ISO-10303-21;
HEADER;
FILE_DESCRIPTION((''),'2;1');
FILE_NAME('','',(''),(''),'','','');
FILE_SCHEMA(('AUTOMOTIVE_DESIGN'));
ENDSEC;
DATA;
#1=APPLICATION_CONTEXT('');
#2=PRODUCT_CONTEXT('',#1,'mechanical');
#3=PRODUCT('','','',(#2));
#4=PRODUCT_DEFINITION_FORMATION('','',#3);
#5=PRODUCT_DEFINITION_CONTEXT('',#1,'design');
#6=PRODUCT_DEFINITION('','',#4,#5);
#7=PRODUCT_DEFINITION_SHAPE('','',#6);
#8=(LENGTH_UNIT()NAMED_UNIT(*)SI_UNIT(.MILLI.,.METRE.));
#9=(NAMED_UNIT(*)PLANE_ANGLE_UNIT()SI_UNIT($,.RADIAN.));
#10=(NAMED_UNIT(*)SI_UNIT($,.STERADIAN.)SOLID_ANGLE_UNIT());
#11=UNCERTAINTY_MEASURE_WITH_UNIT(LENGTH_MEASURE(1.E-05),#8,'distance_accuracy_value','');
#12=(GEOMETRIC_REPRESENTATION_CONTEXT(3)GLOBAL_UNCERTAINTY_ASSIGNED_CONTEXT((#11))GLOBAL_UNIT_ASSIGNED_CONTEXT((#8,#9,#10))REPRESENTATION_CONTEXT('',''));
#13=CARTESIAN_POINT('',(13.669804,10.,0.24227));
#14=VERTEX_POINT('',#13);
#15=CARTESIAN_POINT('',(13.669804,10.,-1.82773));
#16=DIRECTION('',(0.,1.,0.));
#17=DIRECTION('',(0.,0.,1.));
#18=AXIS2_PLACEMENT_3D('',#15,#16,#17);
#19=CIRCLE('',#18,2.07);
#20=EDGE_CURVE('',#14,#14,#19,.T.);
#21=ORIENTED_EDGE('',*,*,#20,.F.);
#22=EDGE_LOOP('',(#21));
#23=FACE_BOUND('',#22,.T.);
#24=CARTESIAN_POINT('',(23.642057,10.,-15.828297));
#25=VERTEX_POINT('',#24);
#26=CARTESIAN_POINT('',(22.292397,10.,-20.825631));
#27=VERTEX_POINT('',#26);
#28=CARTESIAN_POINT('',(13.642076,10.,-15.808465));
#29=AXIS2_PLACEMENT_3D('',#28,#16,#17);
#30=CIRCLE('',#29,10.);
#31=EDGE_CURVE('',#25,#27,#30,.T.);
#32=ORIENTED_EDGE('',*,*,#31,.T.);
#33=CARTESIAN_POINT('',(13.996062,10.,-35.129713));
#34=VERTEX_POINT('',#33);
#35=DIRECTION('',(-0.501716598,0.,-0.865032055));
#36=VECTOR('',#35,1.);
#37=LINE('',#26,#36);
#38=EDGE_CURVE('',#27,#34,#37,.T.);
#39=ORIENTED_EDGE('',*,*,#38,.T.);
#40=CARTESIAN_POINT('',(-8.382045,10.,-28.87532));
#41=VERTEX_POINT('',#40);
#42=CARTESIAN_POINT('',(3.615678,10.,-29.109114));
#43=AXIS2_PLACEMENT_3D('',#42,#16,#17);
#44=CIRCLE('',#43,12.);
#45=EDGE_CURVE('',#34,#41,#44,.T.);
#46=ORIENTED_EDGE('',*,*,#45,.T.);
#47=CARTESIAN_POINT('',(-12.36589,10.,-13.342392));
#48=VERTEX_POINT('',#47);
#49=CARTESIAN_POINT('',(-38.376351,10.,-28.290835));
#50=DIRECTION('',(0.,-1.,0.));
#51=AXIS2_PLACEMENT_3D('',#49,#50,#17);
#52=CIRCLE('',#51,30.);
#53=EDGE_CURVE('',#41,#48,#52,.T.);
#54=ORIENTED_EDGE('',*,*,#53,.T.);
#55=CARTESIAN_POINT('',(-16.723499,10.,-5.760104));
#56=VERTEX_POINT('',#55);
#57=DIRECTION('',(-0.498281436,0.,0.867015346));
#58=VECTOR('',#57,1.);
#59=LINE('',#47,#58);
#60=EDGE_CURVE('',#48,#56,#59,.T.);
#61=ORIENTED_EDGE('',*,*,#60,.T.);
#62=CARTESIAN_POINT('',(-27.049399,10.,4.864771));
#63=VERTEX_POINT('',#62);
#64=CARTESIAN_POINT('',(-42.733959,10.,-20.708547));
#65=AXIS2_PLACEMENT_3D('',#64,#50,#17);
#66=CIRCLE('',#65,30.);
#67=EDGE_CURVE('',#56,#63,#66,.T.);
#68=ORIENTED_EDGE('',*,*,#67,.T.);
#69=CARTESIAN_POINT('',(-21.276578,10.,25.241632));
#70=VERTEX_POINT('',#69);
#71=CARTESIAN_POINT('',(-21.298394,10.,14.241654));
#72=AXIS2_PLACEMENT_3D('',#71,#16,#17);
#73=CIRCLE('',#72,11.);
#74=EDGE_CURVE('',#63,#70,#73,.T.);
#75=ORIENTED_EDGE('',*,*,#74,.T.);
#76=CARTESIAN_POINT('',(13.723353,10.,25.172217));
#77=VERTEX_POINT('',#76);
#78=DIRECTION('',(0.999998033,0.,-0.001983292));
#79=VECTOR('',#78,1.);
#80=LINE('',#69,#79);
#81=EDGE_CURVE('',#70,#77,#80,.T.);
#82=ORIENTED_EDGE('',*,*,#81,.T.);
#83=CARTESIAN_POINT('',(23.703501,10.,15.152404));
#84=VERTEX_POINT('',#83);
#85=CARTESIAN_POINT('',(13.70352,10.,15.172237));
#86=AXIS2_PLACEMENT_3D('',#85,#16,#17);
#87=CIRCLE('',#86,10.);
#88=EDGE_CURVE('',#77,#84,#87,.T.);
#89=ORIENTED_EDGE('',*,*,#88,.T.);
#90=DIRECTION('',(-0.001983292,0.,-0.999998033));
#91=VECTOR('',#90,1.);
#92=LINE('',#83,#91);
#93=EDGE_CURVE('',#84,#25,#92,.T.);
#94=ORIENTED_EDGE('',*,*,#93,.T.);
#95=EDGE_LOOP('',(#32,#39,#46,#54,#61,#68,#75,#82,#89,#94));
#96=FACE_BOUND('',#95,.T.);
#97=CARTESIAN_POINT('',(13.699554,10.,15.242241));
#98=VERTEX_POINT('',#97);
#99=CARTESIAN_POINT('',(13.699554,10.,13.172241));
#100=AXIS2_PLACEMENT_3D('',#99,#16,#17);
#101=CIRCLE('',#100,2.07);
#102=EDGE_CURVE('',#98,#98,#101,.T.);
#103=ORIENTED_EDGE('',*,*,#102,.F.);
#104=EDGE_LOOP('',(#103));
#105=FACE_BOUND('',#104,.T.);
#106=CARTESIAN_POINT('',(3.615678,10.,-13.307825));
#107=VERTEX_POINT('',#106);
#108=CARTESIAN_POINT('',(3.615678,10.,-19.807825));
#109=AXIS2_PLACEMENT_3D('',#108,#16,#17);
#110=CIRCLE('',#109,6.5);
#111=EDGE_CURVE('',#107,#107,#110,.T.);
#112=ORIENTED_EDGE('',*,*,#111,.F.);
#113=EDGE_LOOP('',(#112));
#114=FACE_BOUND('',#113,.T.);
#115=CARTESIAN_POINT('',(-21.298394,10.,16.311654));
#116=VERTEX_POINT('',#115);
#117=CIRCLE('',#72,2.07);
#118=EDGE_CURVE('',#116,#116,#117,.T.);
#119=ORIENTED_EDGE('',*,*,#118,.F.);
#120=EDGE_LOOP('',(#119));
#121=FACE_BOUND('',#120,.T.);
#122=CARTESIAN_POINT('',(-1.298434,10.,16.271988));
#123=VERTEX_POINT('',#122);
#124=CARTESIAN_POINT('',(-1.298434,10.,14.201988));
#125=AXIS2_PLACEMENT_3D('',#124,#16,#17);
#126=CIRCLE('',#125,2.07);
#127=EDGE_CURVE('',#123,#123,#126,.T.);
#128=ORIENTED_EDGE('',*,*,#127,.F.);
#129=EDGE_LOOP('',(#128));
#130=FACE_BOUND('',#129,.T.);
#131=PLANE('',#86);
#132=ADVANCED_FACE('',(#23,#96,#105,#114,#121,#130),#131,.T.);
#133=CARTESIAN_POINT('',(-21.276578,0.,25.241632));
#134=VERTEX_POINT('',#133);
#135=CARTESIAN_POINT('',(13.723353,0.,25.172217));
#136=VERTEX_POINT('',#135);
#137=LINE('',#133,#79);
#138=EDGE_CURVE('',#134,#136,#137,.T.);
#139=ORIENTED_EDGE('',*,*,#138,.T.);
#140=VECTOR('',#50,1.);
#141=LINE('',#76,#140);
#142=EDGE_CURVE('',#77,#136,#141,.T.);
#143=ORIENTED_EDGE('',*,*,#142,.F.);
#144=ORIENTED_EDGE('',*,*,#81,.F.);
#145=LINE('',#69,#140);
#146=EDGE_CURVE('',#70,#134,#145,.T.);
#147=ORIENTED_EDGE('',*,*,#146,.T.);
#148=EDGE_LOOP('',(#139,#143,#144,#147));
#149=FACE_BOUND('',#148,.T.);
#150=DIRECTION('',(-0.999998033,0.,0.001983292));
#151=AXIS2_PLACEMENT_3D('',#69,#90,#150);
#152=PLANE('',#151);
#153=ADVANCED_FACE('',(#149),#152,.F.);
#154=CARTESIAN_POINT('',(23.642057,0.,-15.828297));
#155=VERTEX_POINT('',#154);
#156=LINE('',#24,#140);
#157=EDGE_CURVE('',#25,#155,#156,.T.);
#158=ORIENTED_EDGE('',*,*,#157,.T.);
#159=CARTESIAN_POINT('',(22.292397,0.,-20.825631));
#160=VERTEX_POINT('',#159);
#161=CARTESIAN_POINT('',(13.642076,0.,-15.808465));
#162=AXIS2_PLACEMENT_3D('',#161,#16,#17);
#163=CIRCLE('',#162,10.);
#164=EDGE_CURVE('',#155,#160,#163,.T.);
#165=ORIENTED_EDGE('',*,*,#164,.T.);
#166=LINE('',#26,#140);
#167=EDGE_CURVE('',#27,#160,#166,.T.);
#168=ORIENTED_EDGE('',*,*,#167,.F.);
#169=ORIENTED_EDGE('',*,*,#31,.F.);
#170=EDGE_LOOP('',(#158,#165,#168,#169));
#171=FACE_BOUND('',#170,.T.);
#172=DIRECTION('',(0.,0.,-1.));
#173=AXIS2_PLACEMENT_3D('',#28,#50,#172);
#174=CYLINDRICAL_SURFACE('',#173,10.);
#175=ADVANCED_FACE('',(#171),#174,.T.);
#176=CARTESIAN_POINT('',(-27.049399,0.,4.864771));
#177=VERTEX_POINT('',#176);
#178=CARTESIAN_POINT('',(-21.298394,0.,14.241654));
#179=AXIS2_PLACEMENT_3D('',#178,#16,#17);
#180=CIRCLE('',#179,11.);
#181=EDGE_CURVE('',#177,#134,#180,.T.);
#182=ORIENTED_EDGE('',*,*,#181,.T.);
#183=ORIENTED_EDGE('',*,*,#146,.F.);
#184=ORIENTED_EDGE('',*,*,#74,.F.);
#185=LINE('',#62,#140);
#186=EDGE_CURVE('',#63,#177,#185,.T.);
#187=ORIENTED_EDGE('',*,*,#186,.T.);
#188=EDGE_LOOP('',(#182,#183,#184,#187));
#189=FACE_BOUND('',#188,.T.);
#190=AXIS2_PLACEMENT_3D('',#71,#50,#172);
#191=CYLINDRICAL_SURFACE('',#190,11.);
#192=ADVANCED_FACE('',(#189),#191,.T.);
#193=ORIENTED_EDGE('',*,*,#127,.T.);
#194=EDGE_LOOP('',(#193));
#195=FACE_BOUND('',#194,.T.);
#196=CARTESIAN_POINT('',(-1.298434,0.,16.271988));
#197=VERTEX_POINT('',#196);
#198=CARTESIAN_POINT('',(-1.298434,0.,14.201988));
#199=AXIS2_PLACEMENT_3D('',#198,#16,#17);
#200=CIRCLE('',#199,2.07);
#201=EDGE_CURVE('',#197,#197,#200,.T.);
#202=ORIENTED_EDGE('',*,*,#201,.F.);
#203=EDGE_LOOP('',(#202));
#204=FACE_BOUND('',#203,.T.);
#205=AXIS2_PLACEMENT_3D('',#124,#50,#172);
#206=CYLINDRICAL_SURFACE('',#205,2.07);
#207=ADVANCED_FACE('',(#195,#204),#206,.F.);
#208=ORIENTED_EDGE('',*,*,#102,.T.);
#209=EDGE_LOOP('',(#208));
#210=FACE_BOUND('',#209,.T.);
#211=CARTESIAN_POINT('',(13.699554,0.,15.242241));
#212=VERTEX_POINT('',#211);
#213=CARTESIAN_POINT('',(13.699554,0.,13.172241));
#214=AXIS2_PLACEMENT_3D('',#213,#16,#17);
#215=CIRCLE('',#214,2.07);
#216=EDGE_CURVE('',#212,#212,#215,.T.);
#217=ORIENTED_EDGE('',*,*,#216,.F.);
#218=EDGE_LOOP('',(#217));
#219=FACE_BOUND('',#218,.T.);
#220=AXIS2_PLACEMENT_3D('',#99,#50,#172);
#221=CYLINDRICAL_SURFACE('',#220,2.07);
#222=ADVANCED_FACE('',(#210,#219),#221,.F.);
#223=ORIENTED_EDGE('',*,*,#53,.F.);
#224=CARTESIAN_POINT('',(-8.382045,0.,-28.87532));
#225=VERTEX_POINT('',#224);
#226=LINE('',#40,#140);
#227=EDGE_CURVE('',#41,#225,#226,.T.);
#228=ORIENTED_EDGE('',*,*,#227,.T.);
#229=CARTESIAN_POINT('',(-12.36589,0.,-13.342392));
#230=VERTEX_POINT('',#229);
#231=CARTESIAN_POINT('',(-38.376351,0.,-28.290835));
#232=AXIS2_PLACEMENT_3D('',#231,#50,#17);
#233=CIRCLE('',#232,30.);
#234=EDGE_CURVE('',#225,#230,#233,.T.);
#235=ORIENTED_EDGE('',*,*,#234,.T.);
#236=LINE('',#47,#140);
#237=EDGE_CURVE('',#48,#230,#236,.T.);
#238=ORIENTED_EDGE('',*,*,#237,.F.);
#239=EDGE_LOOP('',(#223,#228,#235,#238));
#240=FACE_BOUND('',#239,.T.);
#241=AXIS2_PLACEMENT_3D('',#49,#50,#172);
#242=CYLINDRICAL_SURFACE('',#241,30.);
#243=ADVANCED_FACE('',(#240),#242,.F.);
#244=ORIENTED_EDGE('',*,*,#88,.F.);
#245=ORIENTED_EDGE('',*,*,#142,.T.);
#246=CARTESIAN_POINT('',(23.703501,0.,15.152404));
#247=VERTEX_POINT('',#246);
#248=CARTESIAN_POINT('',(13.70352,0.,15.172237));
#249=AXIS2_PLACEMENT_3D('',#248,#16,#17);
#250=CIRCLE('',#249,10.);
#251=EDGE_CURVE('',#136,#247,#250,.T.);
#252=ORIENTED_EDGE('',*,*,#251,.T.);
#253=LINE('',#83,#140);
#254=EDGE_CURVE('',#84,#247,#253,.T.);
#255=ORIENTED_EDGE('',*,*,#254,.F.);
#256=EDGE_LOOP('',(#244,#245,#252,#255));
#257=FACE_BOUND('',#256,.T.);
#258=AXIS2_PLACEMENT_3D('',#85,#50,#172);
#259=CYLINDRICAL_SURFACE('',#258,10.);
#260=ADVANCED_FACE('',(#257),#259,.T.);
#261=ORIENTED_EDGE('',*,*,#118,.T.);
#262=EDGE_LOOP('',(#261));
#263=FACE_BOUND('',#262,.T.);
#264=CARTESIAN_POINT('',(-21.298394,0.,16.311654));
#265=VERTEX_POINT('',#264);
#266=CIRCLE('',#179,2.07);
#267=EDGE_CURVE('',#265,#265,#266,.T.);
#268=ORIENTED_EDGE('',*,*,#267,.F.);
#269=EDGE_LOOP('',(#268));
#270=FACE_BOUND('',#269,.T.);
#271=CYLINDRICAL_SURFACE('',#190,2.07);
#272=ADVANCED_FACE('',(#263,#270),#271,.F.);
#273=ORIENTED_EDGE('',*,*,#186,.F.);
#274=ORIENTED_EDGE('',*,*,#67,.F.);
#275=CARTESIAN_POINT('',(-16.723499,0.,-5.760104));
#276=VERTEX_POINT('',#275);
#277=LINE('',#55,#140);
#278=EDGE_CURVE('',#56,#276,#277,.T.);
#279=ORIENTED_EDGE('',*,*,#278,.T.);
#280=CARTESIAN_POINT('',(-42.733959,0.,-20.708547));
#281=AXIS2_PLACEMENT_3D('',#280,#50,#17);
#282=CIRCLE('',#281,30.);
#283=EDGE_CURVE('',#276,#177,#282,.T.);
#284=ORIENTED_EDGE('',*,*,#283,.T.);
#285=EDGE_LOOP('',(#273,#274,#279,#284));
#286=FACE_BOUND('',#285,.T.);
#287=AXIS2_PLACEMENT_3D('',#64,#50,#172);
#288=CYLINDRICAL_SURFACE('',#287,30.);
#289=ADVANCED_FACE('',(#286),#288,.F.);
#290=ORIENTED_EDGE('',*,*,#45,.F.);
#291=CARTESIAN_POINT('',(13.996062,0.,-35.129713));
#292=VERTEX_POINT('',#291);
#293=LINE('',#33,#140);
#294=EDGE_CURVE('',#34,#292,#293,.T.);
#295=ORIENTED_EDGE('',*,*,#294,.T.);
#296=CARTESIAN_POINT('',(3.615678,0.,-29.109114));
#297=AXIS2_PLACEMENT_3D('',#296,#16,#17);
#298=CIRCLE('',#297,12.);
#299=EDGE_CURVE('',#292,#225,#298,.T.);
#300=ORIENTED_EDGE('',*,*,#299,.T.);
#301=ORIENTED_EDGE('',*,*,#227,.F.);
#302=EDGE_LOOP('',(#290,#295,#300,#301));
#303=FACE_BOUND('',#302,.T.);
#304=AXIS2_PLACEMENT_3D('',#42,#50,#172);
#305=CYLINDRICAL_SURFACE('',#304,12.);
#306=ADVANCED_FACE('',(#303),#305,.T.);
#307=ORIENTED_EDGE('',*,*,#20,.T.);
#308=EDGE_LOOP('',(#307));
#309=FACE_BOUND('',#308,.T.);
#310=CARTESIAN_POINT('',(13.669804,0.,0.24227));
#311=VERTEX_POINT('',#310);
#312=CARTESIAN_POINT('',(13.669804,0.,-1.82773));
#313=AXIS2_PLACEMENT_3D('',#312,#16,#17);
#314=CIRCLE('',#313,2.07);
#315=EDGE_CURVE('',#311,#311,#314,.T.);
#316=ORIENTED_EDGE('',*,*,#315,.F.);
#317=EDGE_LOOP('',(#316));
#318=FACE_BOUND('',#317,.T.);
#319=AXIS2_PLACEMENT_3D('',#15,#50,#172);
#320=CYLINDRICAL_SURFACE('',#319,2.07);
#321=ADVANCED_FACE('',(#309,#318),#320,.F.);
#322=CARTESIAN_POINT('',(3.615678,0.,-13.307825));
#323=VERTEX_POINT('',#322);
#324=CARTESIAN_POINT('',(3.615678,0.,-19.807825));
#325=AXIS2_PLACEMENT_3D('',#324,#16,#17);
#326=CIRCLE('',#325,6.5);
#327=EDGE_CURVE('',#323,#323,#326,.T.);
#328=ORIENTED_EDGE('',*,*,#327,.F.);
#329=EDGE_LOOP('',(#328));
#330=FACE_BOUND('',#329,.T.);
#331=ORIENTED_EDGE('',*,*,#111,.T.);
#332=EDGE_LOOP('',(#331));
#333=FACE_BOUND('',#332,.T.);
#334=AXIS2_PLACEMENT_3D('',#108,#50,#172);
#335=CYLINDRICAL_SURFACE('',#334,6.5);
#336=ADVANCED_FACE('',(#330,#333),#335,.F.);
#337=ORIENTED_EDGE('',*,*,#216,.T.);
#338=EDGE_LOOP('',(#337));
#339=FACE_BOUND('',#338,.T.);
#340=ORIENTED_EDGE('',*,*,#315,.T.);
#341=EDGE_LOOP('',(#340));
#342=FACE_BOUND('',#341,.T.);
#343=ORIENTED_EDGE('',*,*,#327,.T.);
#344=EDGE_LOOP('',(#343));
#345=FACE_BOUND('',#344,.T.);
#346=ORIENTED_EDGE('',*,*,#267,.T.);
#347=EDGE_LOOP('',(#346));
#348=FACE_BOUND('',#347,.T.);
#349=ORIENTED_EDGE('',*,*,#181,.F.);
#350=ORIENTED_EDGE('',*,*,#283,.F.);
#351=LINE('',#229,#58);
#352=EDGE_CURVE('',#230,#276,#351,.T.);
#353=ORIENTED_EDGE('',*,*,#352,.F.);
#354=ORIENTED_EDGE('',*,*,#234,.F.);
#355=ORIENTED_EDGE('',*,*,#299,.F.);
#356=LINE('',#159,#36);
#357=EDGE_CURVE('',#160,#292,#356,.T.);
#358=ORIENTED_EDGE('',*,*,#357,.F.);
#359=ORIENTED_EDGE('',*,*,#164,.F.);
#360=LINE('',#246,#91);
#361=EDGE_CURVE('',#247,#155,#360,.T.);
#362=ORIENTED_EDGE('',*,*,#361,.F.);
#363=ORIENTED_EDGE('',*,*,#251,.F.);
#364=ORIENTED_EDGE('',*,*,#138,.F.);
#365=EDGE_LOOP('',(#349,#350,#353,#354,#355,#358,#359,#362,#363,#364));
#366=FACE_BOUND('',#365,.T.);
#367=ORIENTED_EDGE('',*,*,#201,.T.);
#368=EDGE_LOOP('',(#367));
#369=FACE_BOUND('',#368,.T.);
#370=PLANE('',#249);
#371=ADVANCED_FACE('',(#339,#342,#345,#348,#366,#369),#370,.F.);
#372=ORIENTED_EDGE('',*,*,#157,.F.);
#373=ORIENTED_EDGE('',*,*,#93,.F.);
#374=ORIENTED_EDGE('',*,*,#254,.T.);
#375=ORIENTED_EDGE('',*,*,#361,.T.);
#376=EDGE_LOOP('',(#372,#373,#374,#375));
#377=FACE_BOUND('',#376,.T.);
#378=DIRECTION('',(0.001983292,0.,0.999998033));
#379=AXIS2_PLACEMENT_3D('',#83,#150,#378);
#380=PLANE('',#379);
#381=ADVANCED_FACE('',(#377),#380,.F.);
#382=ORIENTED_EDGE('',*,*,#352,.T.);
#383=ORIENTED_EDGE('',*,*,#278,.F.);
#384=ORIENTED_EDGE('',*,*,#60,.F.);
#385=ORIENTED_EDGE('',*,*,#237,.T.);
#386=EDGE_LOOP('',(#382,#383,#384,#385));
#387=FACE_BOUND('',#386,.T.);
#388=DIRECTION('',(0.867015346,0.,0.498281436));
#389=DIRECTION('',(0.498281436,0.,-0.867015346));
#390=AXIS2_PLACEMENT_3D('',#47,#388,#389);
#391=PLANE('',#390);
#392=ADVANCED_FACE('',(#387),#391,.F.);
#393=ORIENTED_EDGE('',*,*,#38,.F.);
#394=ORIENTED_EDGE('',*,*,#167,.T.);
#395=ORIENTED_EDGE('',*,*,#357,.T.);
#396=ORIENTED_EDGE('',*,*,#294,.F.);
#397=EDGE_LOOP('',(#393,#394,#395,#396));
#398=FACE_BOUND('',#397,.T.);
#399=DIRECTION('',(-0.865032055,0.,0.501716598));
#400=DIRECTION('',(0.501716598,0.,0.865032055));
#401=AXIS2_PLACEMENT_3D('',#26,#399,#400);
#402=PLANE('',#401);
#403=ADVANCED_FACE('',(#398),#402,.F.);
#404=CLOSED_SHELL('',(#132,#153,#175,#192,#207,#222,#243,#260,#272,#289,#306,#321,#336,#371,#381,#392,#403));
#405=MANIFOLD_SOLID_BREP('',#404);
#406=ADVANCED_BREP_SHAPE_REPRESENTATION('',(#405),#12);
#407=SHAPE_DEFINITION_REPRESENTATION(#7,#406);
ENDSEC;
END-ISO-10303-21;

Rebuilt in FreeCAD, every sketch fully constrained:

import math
import FreeCAD as App
import Part
import Sketcher

doc = App.newDocument("Part")
body = doc.addObject("PartDesign::Body", "Body")

# Sketch on XZ plane
sketch1 = doc.addObject("Sketcher::SketchObject", "Sketch")
body.addObject(sketch1)
sketch1.AttachmentSupport = (doc.XZ_Plane, [""])
sketch1.MapMode = "FlatFace"
sketch1.addGeometry(Part.LineSegment(App.Vector(23.7, 15.2, 0), App.Vector(23.6, -15.8, 0)), False)
sketch1.addGeometry(Part.ArcOfCircle(Part.Circle(App.Vector(13.6, -15.8, 0), App.Vector(0, 0, 1), 10), math.radians(-30), math.radians(0)), False)
sketch1.addGeometry(Part.LineSegment(App.Vector(22.3, -20.8, 0), App.Vector(14, -35.1, 0)), False)
sketch1.addGeometry(Part.ArcOfCircle(Part.Circle(App.Vector(3.6, -29.1, 0), App.Vector(0, 0, 1), 12), math.radians(179), math.radians(330)), False)
sketch1.addGeometry(Part.ArcOfCircle(Part.Circle(App.Vector(-38.4, -28.3, 0), App.Vector(0, 0, 1), 30), math.radians(-1), math.radians(30)), False)
sketch1.addGeometry(Part.LineSegment(App.Vector(-12.4, -13.3, 0), App.Vector(-16.7, -5.8, 0)), False)
sketch1.addGeometry(Part.ArcOfCircle(Part.Circle(App.Vector(-42.7, -20.7, 0), App.Vector(0, 0, 1), 30), math.radians(30), math.radians(58)), False)
sketch1.addGeometry(Part.ArcOfCircle(Part.Circle(App.Vector(-21.3, 14.2, 0), App.Vector(0, 0, 1), 11), math.radians(90), math.radians(238)), False)
sketch1.addGeometry(Part.LineSegment(App.Vector(-21.3, 25.2, 0), App.Vector(13.7, 25.2, 0)), False)
sketch1.addGeometry(Part.ArcOfCircle(Part.Circle(App.Vector(13.7, 15.2, 0), App.Vector(0, 0, 1), 10), math.radians(0), math.radians(90)), False)
sketch1.addGeometry(Part.Circle(App.Vector(-21.3, 14.2, 0), App.Vector(0, 0, 1), 2.1), False)
sketch1.addGeometry(Part.Circle(App.Vector(-1.3, 14.2, 0), App.Vector(0, 0, 1), 2.1), False)
sketch1.addGeometry(Part.Circle(App.Vector(13.7, 13.2, 0), App.Vector(0, 0, 1), 2.1), False)
sketch1.addGeometry(Part.Circle(App.Vector(13.7, -1.8, 0), App.Vector(0, 0, 1), 2.1), False)
sketch1.addGeometry(Part.Circle(App.Vector(3.6, -19.8, 0), App.Vector(0, 0, 1), 6.5), False)
sketch1.addConstraint(Sketcher.Constraint("Tangent", 0, 2, 1, 2))
sketch1.addConstraint(Sketcher.Constraint("Tangent", 1, 1, 2, 1))
sketch1.addConstraint(Sketcher.Constraint("Tangent", 2, 2, 3, 2))
sketch1.addConstraint(Sketcher.Constraint("Tangent", 3, 1, 4, 1))
sketch1.addConstraint(Sketcher.Constraint("Tangent", 4, 2, 5, 1))
sketch1.addConstraint(Sketcher.Constraint("Tangent", 5, 2, 6, 1))
sketch1.addConstraint(Sketcher.Constraint("Tangent", 6, 2, 7, 2))
sketch1.addConstraint(Sketcher.Constraint("Tangent", 7, 1, 8, 1))
sketch1.addConstraint(Sketcher.Constraint("Tangent", 8, 2, 9, 2))
sketch1.addConstraint(Sketcher.Constraint("Tangent", 9, 1, 0, 1))
sketch1.addConstraint(Sketcher.Constraint("Coincident", 10, 3, 7, 3))
sketch1.addConstraint(Sketcher.Constraint("Equal", 4, 6))
sketch1.addConstraint(Sketcher.Constraint("Equal", 1, 9))
sketch1.addConstraint(Sketcher.Constraint("Equal", 10, 11))
sketch1.addConstraint(Sketcher.Constraint("Equal", 11, 12))
sketch1.addConstraint(Sketcher.Constraint("Equal", 12, 13))
sketch1.addConstraint(Sketcher.Constraint("Perpendicular", 0, 8))
sketch1.addConstraint(Sketcher.Constraint("Vertical", 3, 3, 14, 3))
sketch1.addConstraint(Sketcher.Constraint("Diameter", 14, 13.0))
sketch1.addConstraint(Sketcher.Constraint("Radius", 1, 10.0))
sketch1.addConstraint(Sketcher.Constraint("Radius", 3, 12.0))
sketch1.addConstraint(Sketcher.Constraint("Radius", 4, 30.0))
sketch1.addConstraint(Sketcher.Constraint("Radius", 7, 11.0))
sketch1.addConstraint(Sketcher.Constraint("Diameter", 10, 4.14))
sketch1.addConstraint(Sketcher.Constraint("Distance", 8, 35.0))
sketch1.addConstraint(Sketcher.Constraint("Distance", 2, 16.535898))
sketch1.addConstraint(Sketcher.Constraint("DistanceX", 5, 2, -1, 1, 16.723499))
sketch1.addConstraint(Sketcher.Constraint("DistanceX", 6, 2, -1, 1, 27.049399))
sketch1.addConstraint(Sketcher.Constraint("DistanceX", -1, 1, 9, 1, 23.703501))
sketch1.addConstraint(Sketcher.Constraint("DistanceX", 3, 3, 1, 3, 10.026399))
sketch1.addConstraint(Sketcher.Constraint("DistanceY", 6, 3, 7, 3, 34.950201))
sketch1.addConstraint(Sketcher.Constraint("DistanceY", 1, 3, 9, 3, 30.980701))
sketch1.addConstraint(Sketcher.Constraint("DistanceY", 3, 3, 11, 3, 43.311101))
sketch1.addConstraint(Sketcher.Constraint("DistanceY", 1, 1, 13, 3, 18.997901))
sketch1.addConstraint(Sketcher.Constraint("DistanceX", 12, 3, 8, 2, 0.023799))
sketch1.addConstraint(Sketcher.Constraint("DistanceY", -1, 1, 12, 3, 13.172241))
sketch1.addConstraint(Sketcher.Constraint("DistanceY", 13, 3, -1, 1, 1.82773))
sketch1.addConstraint(Sketcher.Constraint("DistanceX", 7, 3, 11, 3, 19.999961))
sketch1.addConstraint(Sketcher.Constraint("DistanceX", 13, 3, 12, 3, 0.029749))
sketch1.addConstraint(Sketcher.Constraint("DistanceY", 3, 3, 14, 3, 9.301288))
pad1 = doc.addObject("PartDesign::Pad", "Pad")
body.addObject(pad1)
pad1.Profile = sketch1
pad1.Length = 10
pad1.Reversed = True

doc.recompute()
